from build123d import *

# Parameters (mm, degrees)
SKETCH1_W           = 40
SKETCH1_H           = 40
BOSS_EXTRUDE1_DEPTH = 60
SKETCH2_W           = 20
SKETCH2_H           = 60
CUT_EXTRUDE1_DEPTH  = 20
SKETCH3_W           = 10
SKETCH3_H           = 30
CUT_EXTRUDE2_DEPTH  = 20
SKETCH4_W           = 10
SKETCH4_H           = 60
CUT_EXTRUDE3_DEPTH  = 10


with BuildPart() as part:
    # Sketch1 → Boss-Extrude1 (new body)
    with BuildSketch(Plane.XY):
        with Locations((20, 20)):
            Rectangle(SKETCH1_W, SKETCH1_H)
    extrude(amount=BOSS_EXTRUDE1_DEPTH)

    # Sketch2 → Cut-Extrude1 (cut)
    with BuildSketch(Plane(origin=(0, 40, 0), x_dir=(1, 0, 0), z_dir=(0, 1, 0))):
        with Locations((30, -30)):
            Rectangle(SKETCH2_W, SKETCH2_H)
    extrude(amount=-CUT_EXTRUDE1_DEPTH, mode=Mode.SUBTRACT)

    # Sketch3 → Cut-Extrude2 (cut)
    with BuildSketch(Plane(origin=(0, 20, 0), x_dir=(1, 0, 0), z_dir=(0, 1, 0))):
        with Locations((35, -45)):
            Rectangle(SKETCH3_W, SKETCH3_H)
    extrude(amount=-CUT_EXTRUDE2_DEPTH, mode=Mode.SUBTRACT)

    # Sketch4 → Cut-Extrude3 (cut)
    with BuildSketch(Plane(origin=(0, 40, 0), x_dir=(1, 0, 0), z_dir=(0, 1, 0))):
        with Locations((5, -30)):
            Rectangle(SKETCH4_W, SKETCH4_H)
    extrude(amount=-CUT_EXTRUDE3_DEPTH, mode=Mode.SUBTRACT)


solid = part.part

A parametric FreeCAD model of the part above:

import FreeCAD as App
import Part
import Sketcher

V = App.Vector


def add_polygon(sketch, points):
    """Adds a closed chain of lines whose ends are joined by coincident constraints."""
    first, n = sketch.GeometryCount, len(points)
    for a, b in zip(points, points[1:] + points[:1]):
        sketch.addGeometry(Part.LineSegment(App.Vector(*a, 0), App.Vector(*b, 0)), False)
    for i in range(n):
        sketch.addConstraint(Sketcher.Constraint("Coincident", first + i, 2, first + (i + 1) % n, 1))

doc = App.newDocument("Part")
body = doc.addObject("PartDesign::Body", "Body")

sketch1 = body.newObject("Sketcher::SketchObject", "Sketch")
sketch1.AttachmentSupport = (doc.getObject("XY_Plane"), [""])
sketch1.MapMode = "FlatFace"
add_polygon(sketch1, [(0, 40), (0, 0), (40, 0), (40, 40)])
sketch1.addConstraint([
    Sketcher.Constraint("Vertical", 0),
    Sketcher.Constraint("Horizontal", 1),
    Sketcher.Constraint("Vertical", 2),
    Sketcher.Constraint("Horizontal", 3),
    Sketcher.Constraint("Coincident", 0, 2, -1, 1),
    Sketcher.Constraint("Equal", 3, 0),
    Sketcher.Constraint("DistanceX", 1, 1, 1, 2, 40.0),
])
pad1 = body.newObject("PartDesign::Pad", "Pad")
pad1.Profile = sketch1
pad1.Length = 60

sketch2 = body.newObject("Sketcher::SketchObject", "Sketch001")
sketch2.AttachmentSupport = (doc.getObject("XZ_Plane"), [""])
sketch2.MapMode = "FlatFace"
sketch2.AttachmentOffset = App.Placement(V(0, 0, -40), App.Rotation())
add_polygon(sketch2, [(20, 0), (20, 60), (40, 60), (40, 0)])
sketch2.addConstraint([
    Sketcher.Constraint("Vertical", 0),
    Sketcher.Constraint("Horizontal", 1),
    Sketcher.Constraint("Vertical", 2),
    Sketcher.Constraint("Horizontal", 3),
    Sketcher.Constraint("PointOnObject", 2, 2, -1),
    Sketcher.Constraint("DistanceX", 1, 1, 1, 2, 20.0),
    Sketcher.Constraint("DistanceY", 0, 1, 0, 2, 60.0),
    Sketcher.Constraint("DistanceX", -1, 1, 0, 2, 20.0),
])
pocket1 = body.newObject("PartDesign::Pocket", "Pocket")
pocket1.Profile = sketch2
pocket1.Length = 20
pocket1.Reversed = True

sketch3 = body.newObject("Sketcher::SketchObject", "Sketch002")
sketch3.AttachmentSupport = (doc.getObject("XZ_Plane"), [""])
sketch3.MapMode = "FlatFace"
sketch3.AttachmentOffset = App.Placement(V(0, 0, -20), App.Rotation())
add_polygon(sketch3, [(30, 30), (30, 60), (40, 60), (40, 30)])
sketch3.addConstraint([
    Sketcher.Constraint("Vertical", 0),
    Sketcher.Constraint("Horizontal", 1),
    Sketcher.Constraint("Vertical", 2),
    Sketcher.Constraint("Horizontal", 3),
    Sketcher.Constraint("DistanceX", 1, 1, 1, 2, 10.0),
    Sketcher.Constraint("DistanceY", 0, 1, 0, 2, 30.0),
    Sketcher.Constraint("DistanceX", -1, 1, 0, 2, 30.0),
    Sketcher.Constraint("DistanceY", -1, 1, 0, 2, 60.0),
])
pocket2 = body.newObject("PartDesign::Pocket", "Pocket001")
pocket2.Profile = sketch3
pocket2.Length = 20
pocket2.Reversed = True

sketch4 = body.newObject("Sketcher::SketchObject", "Sketch003")
sketch4.AttachmentSupport = (doc.getObject("XZ_Plane"), [""])
sketch4.MapMode = "FlatFace"
sketch4.AttachmentOffset = App.Placement(V(0, 0, -40), App.Rotation())
add_polygon(sketch4, [(0, 0), (0, 60), (10, 60), (10, 0)])
sketch4.addConstraint([
    Sketcher.Constraint("Vertical", 0),
    Sketcher.Constraint("Horizontal", 1),
    Sketcher.Constraint("Vertical", 2),
    Sketcher.Constraint("Horizontal", 3),
    Sketcher.Constraint("Coincident", 3, 2, -1, 1),
    Sketcher.Constraint("DistanceX", 1, 1, 1, 2, 10.0),
    Sketcher.Constraint("DistanceY", 0, 1, 0, 2, 60.0),
])
pocket3 = body.newObject("PartDesign::Pocket", "Pocket002")
pocket3.Profile = sketch4
pocket3.Length = 10
pocket3.Reversed = True

doc.recompute()
